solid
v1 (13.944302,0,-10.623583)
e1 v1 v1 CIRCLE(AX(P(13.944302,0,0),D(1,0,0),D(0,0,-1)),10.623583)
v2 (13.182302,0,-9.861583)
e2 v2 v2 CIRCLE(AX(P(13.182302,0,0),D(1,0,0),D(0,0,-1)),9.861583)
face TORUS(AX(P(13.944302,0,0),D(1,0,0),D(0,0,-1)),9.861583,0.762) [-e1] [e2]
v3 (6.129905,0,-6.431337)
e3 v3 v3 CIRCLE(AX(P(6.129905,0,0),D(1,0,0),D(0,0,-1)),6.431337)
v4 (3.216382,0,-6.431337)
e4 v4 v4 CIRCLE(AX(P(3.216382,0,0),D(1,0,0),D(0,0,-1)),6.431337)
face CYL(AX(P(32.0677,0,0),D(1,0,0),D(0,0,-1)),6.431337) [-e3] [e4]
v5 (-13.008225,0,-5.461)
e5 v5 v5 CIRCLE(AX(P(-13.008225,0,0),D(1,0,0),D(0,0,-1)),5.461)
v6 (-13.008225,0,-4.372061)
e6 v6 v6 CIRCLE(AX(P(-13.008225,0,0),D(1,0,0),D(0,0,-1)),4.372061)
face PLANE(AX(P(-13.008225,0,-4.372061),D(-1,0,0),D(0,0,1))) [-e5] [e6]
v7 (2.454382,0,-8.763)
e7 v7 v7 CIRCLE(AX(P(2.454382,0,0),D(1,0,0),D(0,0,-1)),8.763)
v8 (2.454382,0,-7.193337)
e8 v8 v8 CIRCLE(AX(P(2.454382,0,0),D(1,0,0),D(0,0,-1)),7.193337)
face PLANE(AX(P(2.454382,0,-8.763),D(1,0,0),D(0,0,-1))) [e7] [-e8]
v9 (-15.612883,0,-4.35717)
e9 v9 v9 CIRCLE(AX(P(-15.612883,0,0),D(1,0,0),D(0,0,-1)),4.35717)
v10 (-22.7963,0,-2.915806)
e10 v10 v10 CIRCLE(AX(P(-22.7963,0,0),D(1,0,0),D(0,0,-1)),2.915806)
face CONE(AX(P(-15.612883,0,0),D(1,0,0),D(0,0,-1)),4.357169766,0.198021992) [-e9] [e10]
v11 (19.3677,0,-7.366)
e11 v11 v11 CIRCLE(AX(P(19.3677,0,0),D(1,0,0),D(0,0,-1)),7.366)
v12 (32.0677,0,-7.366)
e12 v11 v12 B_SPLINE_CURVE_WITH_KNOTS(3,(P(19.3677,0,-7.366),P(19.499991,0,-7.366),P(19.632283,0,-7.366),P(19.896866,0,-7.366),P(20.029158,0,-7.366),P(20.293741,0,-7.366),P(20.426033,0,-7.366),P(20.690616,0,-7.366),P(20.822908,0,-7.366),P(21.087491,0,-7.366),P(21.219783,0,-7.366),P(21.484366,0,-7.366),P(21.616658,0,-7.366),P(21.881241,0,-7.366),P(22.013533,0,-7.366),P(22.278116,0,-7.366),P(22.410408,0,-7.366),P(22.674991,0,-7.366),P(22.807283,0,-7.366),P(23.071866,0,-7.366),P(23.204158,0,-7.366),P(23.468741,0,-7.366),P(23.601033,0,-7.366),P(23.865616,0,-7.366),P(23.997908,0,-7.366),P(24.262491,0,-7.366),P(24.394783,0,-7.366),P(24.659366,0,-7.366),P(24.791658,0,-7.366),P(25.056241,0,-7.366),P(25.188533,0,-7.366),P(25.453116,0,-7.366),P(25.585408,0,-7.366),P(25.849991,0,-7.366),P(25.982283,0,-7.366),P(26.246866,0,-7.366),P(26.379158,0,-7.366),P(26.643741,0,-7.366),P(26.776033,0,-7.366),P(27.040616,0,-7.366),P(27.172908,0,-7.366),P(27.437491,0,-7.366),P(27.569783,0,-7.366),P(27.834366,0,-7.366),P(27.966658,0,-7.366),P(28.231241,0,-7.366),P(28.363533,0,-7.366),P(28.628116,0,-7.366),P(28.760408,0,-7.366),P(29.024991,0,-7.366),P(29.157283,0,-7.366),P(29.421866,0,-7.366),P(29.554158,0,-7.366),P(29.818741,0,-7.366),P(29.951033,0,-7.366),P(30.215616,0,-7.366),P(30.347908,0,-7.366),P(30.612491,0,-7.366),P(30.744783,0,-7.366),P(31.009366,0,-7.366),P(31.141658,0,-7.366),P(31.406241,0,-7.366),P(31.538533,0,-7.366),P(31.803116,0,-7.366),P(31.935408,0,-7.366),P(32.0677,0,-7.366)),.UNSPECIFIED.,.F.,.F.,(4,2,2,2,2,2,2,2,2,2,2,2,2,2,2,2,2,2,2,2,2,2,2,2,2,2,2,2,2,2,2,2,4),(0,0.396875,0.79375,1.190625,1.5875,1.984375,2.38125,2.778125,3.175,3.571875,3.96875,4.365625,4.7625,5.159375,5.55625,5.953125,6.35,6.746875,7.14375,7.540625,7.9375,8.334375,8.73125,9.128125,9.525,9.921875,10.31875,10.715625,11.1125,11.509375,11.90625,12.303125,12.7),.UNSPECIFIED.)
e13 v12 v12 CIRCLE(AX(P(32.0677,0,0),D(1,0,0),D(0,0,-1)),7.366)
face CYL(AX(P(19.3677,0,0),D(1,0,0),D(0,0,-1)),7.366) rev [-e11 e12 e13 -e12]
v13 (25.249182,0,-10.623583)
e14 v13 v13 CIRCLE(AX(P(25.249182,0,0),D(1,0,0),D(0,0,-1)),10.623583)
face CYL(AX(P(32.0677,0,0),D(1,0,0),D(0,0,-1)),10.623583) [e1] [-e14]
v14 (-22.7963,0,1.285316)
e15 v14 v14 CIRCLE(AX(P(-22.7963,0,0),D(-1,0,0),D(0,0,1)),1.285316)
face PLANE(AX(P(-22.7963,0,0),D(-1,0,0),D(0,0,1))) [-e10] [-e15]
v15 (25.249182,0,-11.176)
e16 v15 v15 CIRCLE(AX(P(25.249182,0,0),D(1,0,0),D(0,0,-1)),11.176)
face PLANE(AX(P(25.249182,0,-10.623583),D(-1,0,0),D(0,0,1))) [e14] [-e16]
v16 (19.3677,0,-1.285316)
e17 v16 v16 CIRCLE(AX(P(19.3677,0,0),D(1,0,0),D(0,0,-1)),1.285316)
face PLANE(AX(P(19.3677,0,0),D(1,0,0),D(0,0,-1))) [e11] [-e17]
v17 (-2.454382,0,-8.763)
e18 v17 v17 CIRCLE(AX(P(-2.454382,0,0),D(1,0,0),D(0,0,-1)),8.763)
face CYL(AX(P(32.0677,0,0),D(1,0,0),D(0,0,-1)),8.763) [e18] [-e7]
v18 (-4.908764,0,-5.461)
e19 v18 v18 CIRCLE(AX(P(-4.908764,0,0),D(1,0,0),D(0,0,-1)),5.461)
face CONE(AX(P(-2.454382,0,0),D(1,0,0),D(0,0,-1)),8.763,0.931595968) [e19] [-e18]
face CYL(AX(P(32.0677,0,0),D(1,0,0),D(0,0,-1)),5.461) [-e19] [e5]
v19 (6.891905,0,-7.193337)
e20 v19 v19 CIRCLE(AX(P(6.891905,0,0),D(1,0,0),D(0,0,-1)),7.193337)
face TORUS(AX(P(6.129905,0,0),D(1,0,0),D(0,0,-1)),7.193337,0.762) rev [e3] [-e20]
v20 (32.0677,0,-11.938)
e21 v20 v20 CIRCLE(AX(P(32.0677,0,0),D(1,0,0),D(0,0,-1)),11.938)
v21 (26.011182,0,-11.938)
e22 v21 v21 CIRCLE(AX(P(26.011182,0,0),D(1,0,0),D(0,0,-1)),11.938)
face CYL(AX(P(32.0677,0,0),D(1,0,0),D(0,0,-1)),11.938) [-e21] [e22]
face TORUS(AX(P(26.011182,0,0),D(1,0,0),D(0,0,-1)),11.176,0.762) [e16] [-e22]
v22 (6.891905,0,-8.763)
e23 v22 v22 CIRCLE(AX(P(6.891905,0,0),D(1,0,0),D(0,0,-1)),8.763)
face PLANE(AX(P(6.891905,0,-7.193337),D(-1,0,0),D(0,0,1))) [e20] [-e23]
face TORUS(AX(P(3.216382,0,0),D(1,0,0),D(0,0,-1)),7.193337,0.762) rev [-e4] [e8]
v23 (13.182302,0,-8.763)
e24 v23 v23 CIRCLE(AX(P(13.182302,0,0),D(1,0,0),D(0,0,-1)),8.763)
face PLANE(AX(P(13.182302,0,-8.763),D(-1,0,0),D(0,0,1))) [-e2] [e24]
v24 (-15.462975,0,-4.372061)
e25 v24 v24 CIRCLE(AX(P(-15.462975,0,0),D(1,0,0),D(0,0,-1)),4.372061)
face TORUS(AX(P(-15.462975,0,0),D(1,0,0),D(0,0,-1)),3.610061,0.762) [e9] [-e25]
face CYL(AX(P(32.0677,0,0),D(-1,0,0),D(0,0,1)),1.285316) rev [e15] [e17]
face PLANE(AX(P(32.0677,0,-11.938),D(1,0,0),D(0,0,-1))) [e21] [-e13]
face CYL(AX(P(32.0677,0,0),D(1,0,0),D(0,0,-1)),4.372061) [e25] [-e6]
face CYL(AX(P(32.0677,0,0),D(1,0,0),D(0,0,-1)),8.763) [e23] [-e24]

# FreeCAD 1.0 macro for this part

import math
import FreeCAD as App
import Part
import Sketcher
from FreeCAD import Vector
Q = App.Units.Quantity

doc = App.newDocument("Part")
params = doc.addObject("Spreadsheet::Sheet", "Params")
for row, (alias, value) in enumerate([
    ("sketch1_radius", "0.03 in"),
    ("sketch1_width", "2.16 in"),
    ("sketch1_height", "0.47 in"),
    ("revolution_angle", "360 deg"),
    ("sketch2_diameter", "0.58 in"),
    ("pocket1_length", "0.5 in"),
], start=1):
    params.set(f"A{row}", alias)
    params.set(f"B{row}", "=" + value)
    params.setAlias(f"B{row}", alias)

body = doc.addObject("PartDesign::Body", "Body")

# Sketch on XZ plane
sketch1 = body.newObject("Sketcher::SketchObject", "Sketch")
sketch1.AttachmentSupport = (doc.getObject("XZ_Plane"), [""])
sketch1.MapMode = "FlatFace"
sketch1.addGeometry([
    Part.LineSegment(Vector(-4.91, -5.46, 0), Vector(-13.01, -5.46, 0)),  # 0
    Part.LineSegment(Vector(-13.01, -5.46, 0), Vector(-13.01, -4.37, 0)),  # 1
    Part.LineSegment(Vector(-13.01, -4.37, 0), Vector(-15.46, -4.37, 0)),  # 2
    Part.ArcOfCircle(Part.Circle(Vector(-15.46, -3.61, 0), Vector(0, 0, 1), 0.76), math.radians(-101.35), math.radians(-90)),  # 3
    Part.LineSegment(Vector(-15.61, -4.36, 0), Vector(-22.8, -2.92, 0)),  # 4
    Part.LineSegment(Vector(-22.8, -2.92, 0), Vector(-22.8, 0, 0)),  # 5
    Part.LineSegment(Vector(-22.8, 0, 0), Vector(32.07, 0, 0)),  # 6
    Part.LineSegment(Vector(32.07, 0, 0), Vector(32.07, -11.94, 0)),  # 7
    Part.LineSegment(Vector(32.07, -11.94, 0), Vector(26.01, -11.94, 0)),  # 8
    Part.ArcOfCircle(Part.Circle(Vector(26.01, -11.18, 0), Vector(0, 0, 1), 0.76), math.radians(-180), math.radians(-90)),  # 9
    Part.LineSegment(Vector(25.25, -11.18, 0), Vector(25.25, -10.62, 0)),  # 10
    Part.LineSegment(Vector(25.25, -10.62, 0), Vector(13.94, -10.62, 0)),  # 11
    Part.ArcOfCircle(Part.Circle(Vector(13.94, -9.86, 0), Vector(0, 0, 1), 0.76), math.radians(-180), math.radians(-90)),  # 12
    Part.LineSegment(Vector(13.18, -9.86, 0), Vector(13.18, -8.76, 0)),  # 13
    Part.LineSegment(Vector(13.18, -8.76, 0), Vector(6.89, -8.76, 0)),  # 14
    Part.LineSegment(Vector(6.89, -8.76, 0), Vector(6.89, -7.19, 0)),  # 15
    Part.ArcOfCircle(Part.Circle(Vector(6.13, -7.19, 0), Vector(0, 0, 1), 0.76), math.radians(0), math.radians(90)),  # 16
    Part.LineSegment(Vector(6.13, -6.43, 0), Vector(3.22, -6.43, 0)),  # 17
    Part.ArcOfCircle(Part.Circle(Vector(3.22, -7.19, 0), Vector(0, 0, 1), 0.76), math.radians(90), math.radians(180)),  # 18
    Part.LineSegment(Vector(2.45, -7.19, 0), Vector(2.45, -8.76, 0)),  # 19
    Part.LineSegment(Vector(2.45, -8.76, 0), Vector(-2.45, -8.76, 0)),  # 20
    Part.LineSegment(Vector(-2.45, -8.76, 0), Vector(-4.91, -5.46, 0)),  # 21
], False)
sketch1.addConstraint([
    Sketcher.Constraint("Coincident", 0, 2, 1, 1),
    Sketcher.Constraint("Coincident", 1, 2, 2, 1),
    Sketcher.Constraint("Tangent", 2, 2, 3, 2),
    Sketcher.Constraint("Tangent", 3, 1, 4, 1),
    Sketcher.Constraint("Coincident", 4, 2, 5, 1),
    Sketcher.Constraint("Coincident", 5, 2, 6, 1),
    Sketcher.Constraint("Coincident", 6, 2, 7, 1),
    Sketcher.Constraint("Coincident", 7, 2, 8, 1),
    Sketcher.Constraint("Tangent", 8, 2, 9, 2),
    Sketcher.Constraint("Tangent", 9, 1, 10, 1),
    Sketcher.Constraint("Coincident", 10, 2, 11, 1),
    Sketcher.Constraint("Tangent", 11, 2, 12, 2),
    Sketcher.Constraint("Tangent", 12, 1, 13, 1),
    Sketcher.Constraint("Coincident", 13, 2, 14, 1),
    Sketcher.Constraint("Coincident", 14, 2, 15, 1),
    Sketcher.Constraint("Tangent", 15, 2, 16, 1),
    Sketcher.Constraint("Tangent", 16, 2, 17, 1),
    Sketcher.Constraint("Tangent", 17, 2, 18, 1),
    Sketcher.Constraint("Tangent", 18, 2, 19, 1),
    Sketcher.Constraint("Coincident", 19, 2, 20, 1),
    Sketcher.Constraint("Coincident", 20, 2, 21, 1),
    Sketcher.Constraint("Coincident", 21, 2, 0, 1),
    Sketcher.Constraint("Horizontal", 0),
    Sketcher.Constraint("Vertical", 1),
    Sketcher.Constraint("Horizontal", 2),
    Sketcher.Constraint("Vertical", 5),
    Sketcher.Constraint("Horizontal", 6),
    Sketcher.Constraint("Vertical", 7),
    Sketcher.Constraint("Horizontal", 8),
    Sketcher.Constraint("Vertical", 10),
    Sketcher.Constraint("Horizontal", 11),
    Sketcher.Constraint("Vertical", 13),
    Sketcher.Constraint("Horizontal", 14),
    Sketcher.Constraint("Vertical", 15),
    Sketcher.Constraint("Horizontal", 17),
    Sketcher.Constraint("Vertical", 19),
    Sketcher.Constraint("Horizontal", 20),
    Sketcher.Constraint("Equal", 3, 9),
    Sketcher.Constraint("Equal", 9, 12),
    Sketcher.Constraint("Equal", 12, 16),
    Sketcher.Constraint("Equal", 16, 18),
    Sketcher.Constraint("PointOnObject", 5, 2, -1),
    Sketcher.Constraint("Horizontal", 14, 2, 19, 2),
    Sketcher.Constraint("Radius", 3, Q("0.03 in")),
    Sketcher.Constraint("DistanceX", 6, 1, 6, 2, Q("2.16 in")),
    Sketcher.Constraint("DistanceY", 7, 2, 7, 1, Q("0.47 in")),
    Sketcher.Constraint("DistanceY", 20, 2, 21, 2, Q("0.13 in")),
    Sketcher.Constraint("DistanceY", 0, 2, -1, 1, Q("0.215 in")),
    Sketcher.Constraint("DistanceX", 0, 2, 0, 1, Q("8.099461 mm")),
    Sketcher.Constraint("DistanceX", 2, 2, 2, 1, Q("2.45475 mm")),
    Sketcher.Constraint("DistanceX", 11, 2, 11, 1, Q("11.30488 mm")),
    Sketcher.Constraint("DistanceY", 1, 1, 1, 2, Q("1.088939 mm")),
    Sketcher.Constraint("DistanceX", -1, 1, 12, 3, Q("13.944302 mm")),
    Sketcher.Constraint("DistanceX", 4, 2, -1, 1, Q("22.7963 mm")),
    Sketcher.Constraint("DistanceX", 18, 3, 9, 3, Q("22.7948 mm")),
    Sketcher.Constraint("DistanceX", 14, 2, 14, 1, Q("6.290397 mm")),
    Sketcher.Constraint("DistanceX", 20, 2, 20, 1, Q("4.908764 mm")),
    Sketcher.Constraint("DistanceY", 5, 1, 5, 2, Q("2.915806 mm")),
    Sketcher.Constraint("DistanceY", 10, 1, 10, 2, Q("0.552417 mm")),
    Sketcher.Constraint("DistanceY", 15, 1, 15, 2, Q("1.569663 mm")),
    Sketcher.Constraint("DistanceX", 3, 3, 16, 3, Q("21.592879 mm")),
])
sketch1.setExpression("Constraints[43]", "Params.sketch1_radius")
sketch1.setExpression("Constraints[44]", "Params.sketch1_width")
sketch1.setExpression("Constraints[45]", "Params.sketch1_height")
revolution = body.newObject("PartDesign::Revolution", "Revolution")
revolution.Profile = sketch1
revolution.ReferenceAxis = (sketch1, ["H_Axis"])
revolution.setExpression("Angle", "Params.revolution_angle")

# Sketch on YZ plane
sketch2 = body.newObject("Sketcher::SketchObject", "Sketch001")
sketch2.AttachmentSupport = (doc.getObject("YZ_Plane"), [""])
sketch2.MapMode = "FlatFace"
sketch2.AttachmentOffset = App.Placement(Vector(0, 0, 32.0677), App.Rotation())
sketch2.addGeometry(Part.Circle(Vector(0, 0, 0), Vector(0, 0, 1), 7), False)
sketch2.addConstraint([
    Sketcher.Constraint("Coincident", 0, 3, -1, 1),
    Sketcher.Constraint("Diameter", 0, Q("0.58 in")),
])
sketch2.setExpression("Constraints[1]", "Params.sketch2_diameter")
pocket1 = body.newObject("PartDesign::Pocket", "Pocket")
pocket1.Profile = sketch2
pocket1.setExpression("Length", "Params.pocket1_length")

# Sketch on YZ plane
sketch3 = body.newObject("Sketcher::SketchObject", "Sketch002")
sketch3.AttachmentSupport = (doc.getObject("YZ_Plane"), [""])
sketch3.MapMode = "FlatFace"
sketch3.AttachmentOffset = App.Placement(Vector(0, 0, -22.7963), App.Rotation())
sketch3.addGeometry(Part.Circle(Vector(0, 0, 0), Vector(0, 0, 1), 1.3), False)
sketch3.addConstraint([
    Sketcher.Constraint("Coincident", 0, 3, -1, 1),
    Sketcher.Constraint("Diameter", 0, Q("2.570632 mm")),
])
pocket2 = body.newObject("PartDesign::Pocket", "Pocket001")
pocket2.Profile = sketch3
pocket2.Type = "ThroughAll"
pocket2.Reversed = True

doc.recompute()
